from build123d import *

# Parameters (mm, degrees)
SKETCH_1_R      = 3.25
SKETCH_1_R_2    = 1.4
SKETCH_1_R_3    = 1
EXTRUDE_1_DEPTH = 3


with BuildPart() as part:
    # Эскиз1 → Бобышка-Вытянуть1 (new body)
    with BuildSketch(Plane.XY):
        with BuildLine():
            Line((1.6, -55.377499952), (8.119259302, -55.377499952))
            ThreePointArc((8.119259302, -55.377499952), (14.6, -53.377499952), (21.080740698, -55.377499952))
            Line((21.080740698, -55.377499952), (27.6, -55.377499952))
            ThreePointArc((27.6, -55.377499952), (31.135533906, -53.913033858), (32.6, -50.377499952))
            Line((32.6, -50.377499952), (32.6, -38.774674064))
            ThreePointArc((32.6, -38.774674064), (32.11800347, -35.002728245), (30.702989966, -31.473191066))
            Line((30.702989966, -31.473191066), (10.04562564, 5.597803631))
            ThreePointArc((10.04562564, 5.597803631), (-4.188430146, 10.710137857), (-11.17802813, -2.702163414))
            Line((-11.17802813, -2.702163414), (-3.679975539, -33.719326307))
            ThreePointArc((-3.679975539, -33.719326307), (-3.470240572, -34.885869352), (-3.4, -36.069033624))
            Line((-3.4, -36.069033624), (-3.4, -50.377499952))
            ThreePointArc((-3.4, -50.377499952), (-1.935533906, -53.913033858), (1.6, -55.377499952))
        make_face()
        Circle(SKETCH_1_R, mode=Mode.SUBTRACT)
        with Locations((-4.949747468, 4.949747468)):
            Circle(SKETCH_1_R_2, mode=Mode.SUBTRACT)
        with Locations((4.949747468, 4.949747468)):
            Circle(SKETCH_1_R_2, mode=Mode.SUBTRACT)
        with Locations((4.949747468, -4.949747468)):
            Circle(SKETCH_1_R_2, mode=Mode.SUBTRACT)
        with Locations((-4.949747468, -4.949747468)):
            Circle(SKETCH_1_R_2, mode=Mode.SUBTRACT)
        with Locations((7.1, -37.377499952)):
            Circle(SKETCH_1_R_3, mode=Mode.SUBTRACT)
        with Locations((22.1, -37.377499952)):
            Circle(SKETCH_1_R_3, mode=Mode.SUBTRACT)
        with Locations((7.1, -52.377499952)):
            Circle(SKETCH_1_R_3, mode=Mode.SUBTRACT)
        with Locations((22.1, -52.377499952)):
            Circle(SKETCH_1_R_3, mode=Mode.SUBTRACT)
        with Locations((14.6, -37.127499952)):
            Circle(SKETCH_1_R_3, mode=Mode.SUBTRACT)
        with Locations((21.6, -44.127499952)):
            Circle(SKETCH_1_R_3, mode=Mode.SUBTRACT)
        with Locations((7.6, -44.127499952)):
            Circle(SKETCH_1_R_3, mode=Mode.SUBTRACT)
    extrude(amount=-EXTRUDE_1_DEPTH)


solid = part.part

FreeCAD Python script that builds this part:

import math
import FreeCAD as App
import Part
import Sketcher
Q = App.Units.Quantity

doc = App.newDocument("Part")
body = doc.addObject("PartDesign::Body", "Body")

# Sketch on XY plane
sketch1 = doc.addObject("Sketcher::SketchObject", "Sketch")
body.addObject(sketch1)
sketch1.AttachmentSupport = (doc.XY_Plane, [""])
sketch1.MapMode = "FlatFace"
sketch1.addGeometry(Part.LineSegment(App.Vector(1.6, -55.4, 0), App.Vector(8.1, -55.4, 0)), False)
sketch1.addGeometry(Part.ArcOfCircle(Part.Circle(App.Vector(14.6, -64.9, 0), App.Vector(0, 0, 1), 11.5), math.radians(56), math.radians(124)), False)
sketch1.addGeometry(Part.LineSegment(App.Vector(21.1, -55.4, 0), App.Vector(27.6, -55.4, 0)), False)
sketch1.addGeometry(Part.ArcOfCircle(Part.Circle(App.Vector(27.6, -50.4, 0), App.Vector(0, 0, 1), 5), math.radians(-90), math.radians(0)), False)
sketch1.addGeometry(Part.LineSegment(App.Vector(32.6, -50.4, 0), App.Vector(32.6, -38.8, 0)), False)
sketch1.addGeometry(Part.ArcOfCircle(Part.Circle(App.Vector(17.6, -38.8, 0), App.Vector(0, 0, 1), 15), math.radians(0), math.radians(29)), False)
sketch1.addGeometry(Part.LineSegment(App.Vector(30.7, -31.5, 0), App.Vector(10, 5.6, 0)), False)
sketch1.addGeometry(Part.ArcOfCircle(Part.Circle(App.Vector(0, 0, 0), App.Vector(0, 0, 1), 11.5), math.radians(29), math.radians(194)), False)
sketch1.addGeometry(Part.LineSegment(App.Vector(-11.2, -2.7, 0), App.Vector(-3.7, -33.7, 0)), False)
sketch1.addGeometry(Part.ArcOfCircle(Part.Circle(App.Vector(-13.4, -36.1, 0), App.Vector(0, 0, 1), 10), math.radians(0), math.radians(13.59)), False)
sketch1.addGeometry(Part.LineSegment(App.Vector(-3.4, -36.1, 0), App.Vector(-3.4, -50.4, 0)), False)
sketch1.addGeometry(Part.ArcOfCircle(Part.Circle(App.Vector(1.6, -50.4, 0), App.Vector(0, 0, 1), 5), math.radians(180), math.radians(270)), False)
sketch1.addGeometry(Part.Circle(App.Vector(7.1, -52.4, 0), App.Vector(0, 0, 1), 1), False)
sketch1.addGeometry(Part.Circle(App.Vector(7.6, -44.1, 0), App.Vector(0, 0, 1), 1), False)
sketch1.addGeometry(Part.Circle(App.Vector(7.1, -37.4, 0), App.Vector(0, 0, 1), 1), False)
sketch1.addGeometry(Part.Circle(App.Vector(22.1, -52.4, 0), App.Vector(0, 0, 1), 1), False)
sketch1.addGeometry(Part.Circle(App.Vector(21.6, -44.1, 0), App.Vector(0, 0, 1), 1), False)
sketch1.addGeometry(Part.Circle(App.Vector(14.6, -37.1, 0), App.Vector(0, 0, 1), 1), False)
sketch1.addGeometry(Part.Circle(App.Vector(22.1, -37.4, 0), App.Vector(0, 0, 1), 1), False)
sketch1.addGeometry(Part.Circle(App.Vector(-4.9, -4.9, 0), App.Vector(0, 0, 1), 1.4), False)
sketch1.addGeometry(Part.Circle(App.Vector(-4.9, 4.9, 0), App.Vector(0, 0, 1), 1.4), False)
sketch1.addGeometry(Part.Circle(App.Vector(0, 0, 0), App.Vector(0, 0, 1), 3.2), False)
sketch1.addGeometry(Part.Circle(App.Vector(4.9, -4.9, 0), App.Vector(0, 0, 1), 1.4), False)
sketch1.addGeometry(Part.Circle(App.Vector(4.9, 4.9, 0), App.Vector(0, 0, 1), 1.4), False)
sketch1.addConstraint(Sketcher.Constraint("Coincident", 0, 2, 1, 2))
sketch1.addConstraint(Sketcher.Constraint("Coincident", 1, 1, 2, 1))
sketch1.addConstraint(Sketcher.Constraint("Tangent", 2, 2, 3, 1))
sketch1.addConstraint(Sketcher.Constraint("Tangent", 3, 2, 4, 1))
sketch1.addConstraint(Sketcher.Constraint("Tangent", 4, 2, 5, 1))
sketch1.addConstraint(Sketcher.Constraint("Tangent", 5, 2, 6, 1))
sketch1.addConstraint(Sketcher.Constraint("Tangent", 6, 2, 7, 1))
sketch1.addConstraint(Sketcher.Constraint("Tangent", 7, 2, 8, 1))
sketch1.addConstraint(Sketcher.Constraint("Tangent", 8, 2, 9, 2))
sketch1.addConstraint(Sketcher.Constraint("Tangent", 9, 1, 10, 1))
sketch1.addConstraint(Sketcher.Constraint("Tangent", 10, 2, 11, 1))
sketch1.addConstraint(Sketcher.Constraint("Tangent", 11, 2, 0, 1))
sketch1.addConstraint(Sketcher.Constraint("Horizontal", 0))
sketch1.addConstraint(Sketcher.Constraint("Horizontal", 2))
sketch1.addConstraint(Sketcher.Constraint("Vertical", 4))
sketch1.addConstraint(Sketcher.Constraint("Vertical", 10))
sketch1.addConstraint(Sketcher.Constraint("Coincident", 7, 3, -1, 1))
sketch1.addConstraint(Sketcher.Constraint("Coincident", 21, 3, -1, 1))
sketch1.addConstraint(Sketcher.Constraint("Equal", 1, 7))
sketch1.addConstraint(Sketcher.Constraint("Equal", 3, 11))
sketch1.addConstraint(Sketcher.Constraint("Equal", 12, 13))
sketch1.addConstraint(Sketcher.Constraint("Equal", 13, 14))
sketch1.addConstraint(Sketcher.Constraint("Equal", 14, 15))
sketch1.addConstraint(Sketcher.Constraint("Equal", 15, 16))
sketch1.addConstraint(Sketcher.Constraint("Equal", 16, 17))
sketch1.addConstraint(Sketcher.Constraint("Equal", 17, 18))
sketch1.addConstraint(Sketcher.Constraint("Equal", 19, 20))
sketch1.addConstraint(Sketcher.Constraint("Equal", 20, 22))
sketch1.addConstraint(Sketcher.Constraint("Equal", 22, 23))
sketch1.addConstraint(Sketcher.Constraint("Symmetric", 20, 3, 22, 3, -1, 1))
sketch1.addConstraint(Sketcher.Constraint("Symmetric", 19, 3, 23, 3, -1, 1))
sketch1.addConstraint(Sketcher.Constraint("Symmetric", 19, 3, 22, 3, -2))
sketch1.addConstraint(Sketcher.Constraint("Horizontal", 3, 3, 11, 3))
sketch1.addConstraint(Sketcher.Constraint("Horizontal", 12, 3, 15, 3))
sketch1.addConstraint(Sketcher.Constraint("Horizontal", 13, 3, 16, 3))
sketch1.addConstraint(Sketcher.Constraint("Horizontal", 14, 3, 18, 3))
sketch1.addConstraint(Sketcher.Constraint("Vertical", 12, 3, 14, 3))
sketch1.addConstraint(Sketcher.Constraint("Vertical", 1, 3, 17, 3))
sketch1.addConstraint(Sketcher.Constraint("Vertical", 15, 3, 18, 3))
sketch1.addConstraint(Sketcher.Constraint("Equal", 0, 2))
sketch1.addConstraint(Sketcher.Constraint("Diameter", 12, Q("2 mm")))
sketch1.addConstraint(Sketcher.Constraint("Radius", 3, Q("5 mm")))
sketch1.addConstraint(Sketcher.Constraint("Radius", 5, Q("15 mm")))
sketch1.addConstraint(Sketcher.Constraint("Radius", 9, Q("10 mm")))
sketch1.addConstraint(Sketcher.Constraint("Diameter", 19, Q("2.8 mm")))
sketch1.addConstraint(Sketcher.Constraint("Diameter", 21, Q("6.5 mm")))
sketch1.addConstraint(Sketcher.Constraint("Radius", 1, Q("11.5 mm")))
sketch1.addConstraint(Sketcher.Constraint("DistanceX", 1, 3, 3, 3, Q("13 mm")))
sketch1.addConstraint(Sketcher.Constraint("DistanceY", 12, 3, 11, 3, Q("2 mm")))
sketch1.addConstraint(Sketcher.Constraint("DistanceX", 11, 3, 13, 3, Q("6 mm")))
sketch1.addConstraint(Sketcher.Constraint("DistanceY", 11, 3, 14, 3, Q("13 mm")))
sketch1.addConstraint(Sketcher.Constraint("DistanceX", 12, 3, 15, 3, Q("15 mm")))
sketch1.addConstraint(Sketcher.Constraint("DistanceX", 5, 3, 16, 3, Q("4 mm")))
sketch1.addConstraint(Sketcher.Constraint("DistanceY", 13, 3, 17, 3, Q("7 mm")))
sketch1.addConstraint(Sketcher.Constraint("DistanceX", -1, 1, 1, 3, Q("14.6 mm")))
sketch1.addConstraint(Sketcher.Constraint("DistanceX", -1, 1, 12, 3, Q("7.1 mm")))
sketch1.addConstraint(Sketcher.Constraint("DistanceY", 1, 3, 3, 3, Q("14.5 mm")))
sketch1.addConstraint(Sketcher.Constraint("DistanceY", 12, 3, 13, 3, Q("8.25 mm")))
sketch1.addConstraint(Sketcher.Constraint("DistanceY", 1, 3, -1, 1, Q("64.8775 mm")))
sketch1.addConstraint(Sketcher.Constraint("Distance", 8, Q("31.910581 mm")))
sketch1.addConstraint(Sketcher.Constraint("DistanceY", 4, 1, 4, 2, Q("11.602826 mm")))
sketch1.addConstraint(Sketcher.Constraint("DistanceY", 9, 3, 20, 3, Q("41.018781 mm")))
sketch1.addConstraint(Sketcher.Constraint("DistanceX", 23, 3, 6, 2, Q("5.095878 mm")))
pad1 = doc.addObject("PartDesign::Pad", "Pad")
body.addObject(pad1)
pad1.Profile = sketch1
pad1.Length = 3
pad1.Reversed = True

doc.recompute()
